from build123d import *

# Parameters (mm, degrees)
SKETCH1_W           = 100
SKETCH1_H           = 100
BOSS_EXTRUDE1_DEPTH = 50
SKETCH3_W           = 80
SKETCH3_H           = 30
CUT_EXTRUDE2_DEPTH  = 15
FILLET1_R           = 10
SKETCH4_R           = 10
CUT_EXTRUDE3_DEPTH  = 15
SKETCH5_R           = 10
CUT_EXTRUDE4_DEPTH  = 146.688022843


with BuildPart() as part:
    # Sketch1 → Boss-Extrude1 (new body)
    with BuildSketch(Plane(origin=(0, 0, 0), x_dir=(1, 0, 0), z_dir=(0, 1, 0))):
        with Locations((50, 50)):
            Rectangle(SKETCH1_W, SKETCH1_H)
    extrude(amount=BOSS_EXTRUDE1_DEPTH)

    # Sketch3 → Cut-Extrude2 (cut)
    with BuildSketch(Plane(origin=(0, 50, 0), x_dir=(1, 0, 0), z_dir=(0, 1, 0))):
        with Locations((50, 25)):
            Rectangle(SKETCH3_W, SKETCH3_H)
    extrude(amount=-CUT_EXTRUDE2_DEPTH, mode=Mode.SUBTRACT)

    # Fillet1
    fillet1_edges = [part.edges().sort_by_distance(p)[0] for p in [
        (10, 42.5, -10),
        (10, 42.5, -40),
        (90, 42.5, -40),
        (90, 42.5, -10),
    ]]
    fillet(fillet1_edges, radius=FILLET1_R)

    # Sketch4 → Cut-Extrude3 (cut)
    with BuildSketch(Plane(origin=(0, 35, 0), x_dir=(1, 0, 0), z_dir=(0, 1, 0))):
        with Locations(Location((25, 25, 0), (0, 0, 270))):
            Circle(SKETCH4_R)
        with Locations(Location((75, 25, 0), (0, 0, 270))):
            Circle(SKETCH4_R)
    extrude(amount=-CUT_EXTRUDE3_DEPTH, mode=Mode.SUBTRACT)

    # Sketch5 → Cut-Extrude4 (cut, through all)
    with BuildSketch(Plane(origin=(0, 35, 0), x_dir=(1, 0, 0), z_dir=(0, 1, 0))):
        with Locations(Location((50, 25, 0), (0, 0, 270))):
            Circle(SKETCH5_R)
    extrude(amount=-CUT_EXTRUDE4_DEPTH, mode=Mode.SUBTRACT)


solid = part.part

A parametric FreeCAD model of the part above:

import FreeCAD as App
import Part
import Sketcher
from FreeCAD import Vector


def edges_at(feature, points):
    """Names of the edges that pass closest to the given points."""
    edges = feature.Shape.Edges
    near = lambda p: min(range(len(edges)), key=lambda i: edges[i].distToShape(Part.Vertex(*p))[0])
    return sorted({f"Edge{near(p) + 1}" for p in points})

doc = App.newDocument("Part")
body = doc.addObject("PartDesign::Body", "Body")

sketch1 = doc.addObject("Sketcher::SketchObject", "Sketch")
body.addObject(sketch1)
sketch1.AttachmentSupport = (doc.XZ_Plane, [""])
sketch1.MapMode = "FlatFace"
sketch1.addGeometry([
    Part.LineSegment(Vector(0, -100, 0), Vector(0, 0, 0)),
    Part.LineSegment(Vector(0, 0, 0), Vector(100, 0, 0)),
    Part.LineSegment(Vector(100, 0, 0), Vector(100, -100, 0)),
    Part.LineSegment(Vector(100, -100, 0), Vector(0, -100, 0)),
], False)
sketch1.addConstraint([
    Sketcher.Constraint("Coincident", 0, 2, 1, 1),
    Sketcher.Constraint("Coincident", 1, 2, 2, 1),
    Sketcher.Constraint("Coincident", 2, 2, 3, 1),
    Sketcher.Constraint("Coincident", 3, 2, 0, 1),
    Sketcher.Constraint("Vertical", 0),
    Sketcher.Constraint("Horizontal", 1),
    Sketcher.Constraint("Vertical", 2),
    Sketcher.Constraint("Horizontal", 3),
    Sketcher.Constraint("Coincident", 0, 2, -1, 1),
    Sketcher.Constraint("Equal", 3, 0),
    Sketcher.Constraint("DistanceX", 1, 1, 1, 2, 100.0),
])
pad1 = doc.addObject("PartDesign::Pad", "Pad")
body.addObject(pad1)
pad1.Profile = sketch1
pad1.Length = 50
pad1.Reversed = True

sketch2 = doc.addObject("Sketcher::SketchObject", "Sketch001")
body.addObject(sketch2)
sketch2.AttachmentSupport = (doc.XZ_Plane, [""])
sketch2.MapMode = "FlatFace"
sketch2.AttachmentOffset = App.Placement(Vector(0, 0, -50), App.Rotation())
sketch2.addGeometry([
    Part.LineSegment(Vector(10, -40, 0), Vector(10, -10, 0)),
    Part.LineSegment(Vector(10, -10, 0), Vector(90, -10, 0)),
    Part.LineSegment(Vector(90, -10, 0), Vector(90, -40, 0)),
    Part.LineSegment(Vector(90, -40, 0), Vector(10, -40, 0)),
], False)
sketch2.addConstraint([
    Sketcher.Constraint("Coincident", 0, 2, 1, 1),
    Sketcher.Constraint("Coincident", 1, 2, 2, 1),
    Sketcher.Constraint("Coincident", 2, 2, 3, 1),
    Sketcher.Constraint("Coincident", 3, 2, 0, 1),
    Sketcher.Constraint("Vertical", 0),
    Sketcher.Constraint("Horizontal", 1),
    Sketcher.Constraint("Vertical", 2),
    Sketcher.Constraint("Horizontal", 3),
    Sketcher.Constraint("DistanceX", 1, 1, 1, 2, 80.0),
    Sketcher.Constraint("DistanceY", 0, 1, 0, 2, 30.0),
    Sketcher.Constraint("DistanceX", -1, 1, 0, 2, 10.0),
    Sketcher.Constraint("DistanceY", 0, 2, -1, 1, 10.0),
])
pocket1 = doc.addObject("PartDesign::Pocket", "Pocket")
body.addObject(pocket1)
pocket1.Profile = sketch2
pocket1.Length = 15
pocket1.Reversed = True
doc.recompute()

fillet = doc.addObject("PartDesign::Fillet", "Fillet")
body.addObject(fillet)
fillet.Base = (pocket1, edges_at(pocket1, [
    (10, 42.5, -10),
    (10, 42.5, -40),
    (90, 42.5, -40),
    (90, 42.5, -10),
]))
fillet.Radius = 10

sketch3 = doc.addObject("Sketcher::SketchObject", "Sketch002")
body.addObject(sketch3)
sketch3.AttachmentSupport = (doc.XZ_Plane, [""])
sketch3.MapMode = "FlatFace"
sketch3.AttachmentOffset = App.Placement(Vector(0, 0, -35), App.Rotation())
sketch3.addGeometry([
    Part.Circle(Vector(25, -25, 0), Vector(0, 0, 1), 10),
    Part.Circle(Vector(75, -25, 0), Vector(0, 0, 1), 10),
], False)
sketch3.addConstraint([
    Sketcher.Constraint("Equal", 0, 1),
    Sketcher.Constraint("Horizontal", 0, 3, 1, 3),
    Sketcher.Constraint("Diameter", 0, 20.0),
    Sketcher.Constraint("DistanceX", -1, 1, 0, 3, 25.0),
    Sketcher.Constraint("DistanceY", 0, 3, -1, 1, 25.0),
    Sketcher.Constraint("DistanceX", -1, 1, 1, 3, 75.0),
])
pocket2 = doc.addObject("PartDesign::Pocket", "Pocket001")
body.addObject(pocket2)
pocket2.Profile = sketch3
pocket2.Length = 15
pocket2.Reversed = True

sketch4 = doc.addObject("Sketcher::SketchObject", "Sketch003")
body.addObject(sketch4)
sketch4.AttachmentSupport = (doc.XZ_Plane, [""])
sketch4.MapMode = "FlatFace"
sketch4.AttachmentOffset = App.Placement(Vector(0, 0, -35), App.Rotation())
sketch4.addGeometry(Part.Circle(Vector(50, -25, 0), Vector(0, 0, 1), 10), False)
sketch4.addConstraint([
    Sketcher.Constraint("Diameter", 0, 20.0),
    Sketcher.Constraint("DistanceX", -1, 1, 0, 3, 50.0),
    Sketcher.Constraint("DistanceY", 0, 3, -1, 1, 25.0),
])
pocket3 = doc.addObject("PartDesign::Pocket", "Pocket002")
body.addObject(pocket3)
pocket3.Profile = sketch4
pocket3.Type = "ThroughAll"
pocket3.Reversed = True

doc.recompute()
